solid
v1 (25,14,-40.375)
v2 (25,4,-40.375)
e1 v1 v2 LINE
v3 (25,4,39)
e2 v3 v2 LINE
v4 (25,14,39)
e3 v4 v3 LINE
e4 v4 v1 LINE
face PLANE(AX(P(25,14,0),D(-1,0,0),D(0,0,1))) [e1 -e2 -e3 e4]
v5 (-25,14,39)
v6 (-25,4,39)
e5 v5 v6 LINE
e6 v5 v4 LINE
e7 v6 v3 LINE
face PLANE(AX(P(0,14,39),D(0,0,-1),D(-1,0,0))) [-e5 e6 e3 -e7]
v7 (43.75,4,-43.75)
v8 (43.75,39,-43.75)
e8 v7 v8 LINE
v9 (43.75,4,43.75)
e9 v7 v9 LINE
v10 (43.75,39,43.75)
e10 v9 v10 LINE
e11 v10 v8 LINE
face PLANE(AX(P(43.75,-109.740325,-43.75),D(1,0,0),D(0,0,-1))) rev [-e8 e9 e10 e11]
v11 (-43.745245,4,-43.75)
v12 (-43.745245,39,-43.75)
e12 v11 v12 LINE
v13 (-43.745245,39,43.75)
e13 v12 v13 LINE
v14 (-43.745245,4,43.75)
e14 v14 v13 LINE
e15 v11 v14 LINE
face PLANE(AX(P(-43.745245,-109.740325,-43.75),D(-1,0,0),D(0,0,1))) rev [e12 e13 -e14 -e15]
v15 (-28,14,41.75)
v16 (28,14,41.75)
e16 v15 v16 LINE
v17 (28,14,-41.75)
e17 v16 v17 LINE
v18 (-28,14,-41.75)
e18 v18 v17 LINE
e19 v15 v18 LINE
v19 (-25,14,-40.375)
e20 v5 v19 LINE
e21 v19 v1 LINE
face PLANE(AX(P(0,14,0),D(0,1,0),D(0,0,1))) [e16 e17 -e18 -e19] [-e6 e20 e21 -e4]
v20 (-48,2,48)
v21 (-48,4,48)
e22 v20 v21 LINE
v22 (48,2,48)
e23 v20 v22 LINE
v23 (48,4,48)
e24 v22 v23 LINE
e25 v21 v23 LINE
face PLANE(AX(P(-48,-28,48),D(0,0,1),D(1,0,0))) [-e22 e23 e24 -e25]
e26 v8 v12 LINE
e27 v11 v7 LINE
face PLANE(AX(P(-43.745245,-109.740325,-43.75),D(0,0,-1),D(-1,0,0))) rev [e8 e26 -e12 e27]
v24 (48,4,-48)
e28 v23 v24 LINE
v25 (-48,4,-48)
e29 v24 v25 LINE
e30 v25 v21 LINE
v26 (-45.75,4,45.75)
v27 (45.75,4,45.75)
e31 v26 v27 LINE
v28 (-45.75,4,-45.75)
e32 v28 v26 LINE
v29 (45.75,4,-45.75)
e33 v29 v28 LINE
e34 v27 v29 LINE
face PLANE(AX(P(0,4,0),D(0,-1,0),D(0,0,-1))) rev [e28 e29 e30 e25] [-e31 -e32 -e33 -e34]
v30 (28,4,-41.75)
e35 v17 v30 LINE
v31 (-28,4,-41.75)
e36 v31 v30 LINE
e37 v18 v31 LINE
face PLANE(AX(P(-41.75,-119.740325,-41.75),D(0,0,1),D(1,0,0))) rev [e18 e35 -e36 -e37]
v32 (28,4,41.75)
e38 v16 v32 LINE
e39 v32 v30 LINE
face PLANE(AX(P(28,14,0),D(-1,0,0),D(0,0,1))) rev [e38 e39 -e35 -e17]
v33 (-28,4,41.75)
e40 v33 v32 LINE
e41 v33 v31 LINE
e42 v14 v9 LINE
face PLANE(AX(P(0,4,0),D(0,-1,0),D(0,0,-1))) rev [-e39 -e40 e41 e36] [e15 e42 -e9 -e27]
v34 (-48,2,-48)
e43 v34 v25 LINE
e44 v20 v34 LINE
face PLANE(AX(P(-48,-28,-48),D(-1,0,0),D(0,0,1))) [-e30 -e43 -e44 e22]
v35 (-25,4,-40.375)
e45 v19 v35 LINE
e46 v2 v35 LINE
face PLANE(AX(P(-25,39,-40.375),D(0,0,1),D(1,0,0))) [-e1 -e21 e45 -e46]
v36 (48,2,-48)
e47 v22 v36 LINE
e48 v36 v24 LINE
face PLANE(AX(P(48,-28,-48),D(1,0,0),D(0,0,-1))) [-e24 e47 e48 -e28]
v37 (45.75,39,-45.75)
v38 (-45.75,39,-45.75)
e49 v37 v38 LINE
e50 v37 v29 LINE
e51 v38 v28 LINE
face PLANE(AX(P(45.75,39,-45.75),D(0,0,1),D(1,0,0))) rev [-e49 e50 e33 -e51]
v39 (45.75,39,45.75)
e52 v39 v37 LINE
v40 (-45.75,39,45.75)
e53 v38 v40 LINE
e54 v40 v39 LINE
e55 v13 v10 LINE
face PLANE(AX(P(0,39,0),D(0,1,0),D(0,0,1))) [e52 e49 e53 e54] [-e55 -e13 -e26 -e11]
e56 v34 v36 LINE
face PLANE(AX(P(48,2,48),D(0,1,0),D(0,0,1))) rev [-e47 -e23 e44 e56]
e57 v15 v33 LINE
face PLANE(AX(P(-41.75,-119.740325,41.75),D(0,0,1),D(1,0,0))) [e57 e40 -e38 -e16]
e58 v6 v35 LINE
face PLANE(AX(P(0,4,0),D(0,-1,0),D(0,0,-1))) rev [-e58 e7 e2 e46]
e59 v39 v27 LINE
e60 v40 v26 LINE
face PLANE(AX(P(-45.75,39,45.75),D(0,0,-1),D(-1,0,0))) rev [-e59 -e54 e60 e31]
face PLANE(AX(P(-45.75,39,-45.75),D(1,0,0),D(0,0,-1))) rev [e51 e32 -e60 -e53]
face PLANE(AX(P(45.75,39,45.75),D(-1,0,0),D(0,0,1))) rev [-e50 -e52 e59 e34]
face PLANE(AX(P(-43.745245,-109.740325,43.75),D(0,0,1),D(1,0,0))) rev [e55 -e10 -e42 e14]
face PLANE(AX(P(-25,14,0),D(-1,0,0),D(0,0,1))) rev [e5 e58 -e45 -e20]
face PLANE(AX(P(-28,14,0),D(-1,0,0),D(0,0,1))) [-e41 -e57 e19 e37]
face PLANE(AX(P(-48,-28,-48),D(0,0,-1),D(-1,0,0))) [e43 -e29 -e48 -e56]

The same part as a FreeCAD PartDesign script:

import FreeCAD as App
import Part
import Sketcher

doc = App.newDocument("Part")
body = doc.addObject("PartDesign::Body", "Body")

# Sketch on XZ plane
sketch1 = body.newObject("Sketcher::SketchObject", "Sketch")
sketch1.AttachmentSupport = (doc.getObject("XZ_Plane"), [""])
sketch1.MapMode = "FlatFace"
sketch1.addGeometry(Part.LineSegment(App.Vector(-50, -50, 0), App.Vector(-50, 50, 0)), False)
sketch1.addGeometry(Part.LineSegment(App.Vector(-50, 50, 0), App.Vector(50, 50, 0)), False)
sketch1.addGeometry(Part.LineSegment(App.Vector(50, 50, 0), App.Vector(50, -50, 0)), False)
sketch1.addGeometry(Part.LineSegment(App.Vector(50, -50, 0), App.Vector(-50, -50, 0)), False)
sketch1.addConstraint(Sketcher.Constraint("Coincident", 0, 2, 1, 1))
sketch1.addConstraint(Sketcher.Constraint("Coincident", 1, 2, 2, 1))
sketch1.addConstraint(Sketcher.Constraint("Coincident", 2, 2, 3, 1))
sketch1.addConstraint(Sketcher.Constraint("Coincident", 3, 2, 0, 1))
sketch1.addConstraint(Sketcher.Constraint("Vertical", 0))
sketch1.addConstraint(Sketcher.Constraint("Horizontal", 1))
sketch1.addConstraint(Sketcher.Constraint("Vertical", 2))
sketch1.addConstraint(Sketcher.Constraint("Horizontal", 3))
sketch1.addConstraint(Sketcher.Constraint("Symmetric", 0, 2, 2, 2, -1, 1))
sketch1.addConstraint(Sketcher.Constraint("Equal", 3, 0))
sketch1.addConstraint(Sketcher.Constraint("DistanceX", 1, 1, 1, 2, 100.0))
pad1 = body.newObject("PartDesign::Pad", "Pad")
pad1.Profile = sketch1
pad1.Length = 4
pad1.Reversed = True

# Sketch on XZ plane
sketch2 = body.newObject("Sketcher::SketchObject", "Sketch001")
sketch2.AttachmentSupport = (doc.getObject("XZ_Plane"), [""])
sketch2.MapMode = "FlatFace"
sketch2.AttachmentOffset = App.Placement(App.Vector(0, 0, -4), App.Rotation())
sketch2.addGeometry(Part.LineSegment(App.Vector(-46, -46, 0), App.Vector(-46, 46, 0)), False)
sketch2.addGeometry(Part.LineSegment(App.Vector(-46, 46, 0), App.Vector(46, 46, 0)), False)
sketch2.addGeometry(Part.LineSegment(App.Vector(46, 46, 0), App.Vector(46, -46, 0)), False)
sketch2.addGeometry(Part.LineSegment(App.Vector(46, -46, 0), App.Vector(-46, -46, 0)), False)
sketch2.addGeometry(Part.LineSegment(App.Vector(42, 42, 0), App.Vector(-42, 42, 0)), False)
sketch2.addGeometry(Part.LineSegment(App.Vector(-42, 42, 0), App.Vector(-42, -42, 0)), False)
sketch2.addGeometry(Part.LineSegment(App.Vector(-42, -42, 0), App.Vector(42, -42, 0)), False)
sketch2.addGeometry(Part.LineSegment(App.Vector(42, -42, 0), App.Vector(42, 42, 0)), False)
sketch2.addConstraint(Sketcher.Constraint("Coincident", 0, 2, 1, 1))
sketch2.addConstraint(Sketcher.Constraint("Coincident", 1, 2, 2, 1))
sketch2.addConstraint(Sketcher.Constraint("Coincident", 2, 2, 3, 1))
sketch2.addConstraint(Sketcher.Constraint("Coincident", 3, 2, 0, 1))
sketch2.addConstraint(Sketcher.Constraint("Coincident", 4, 2, 5, 1))
sketch2.addConstraint(Sketcher.Constraint("Coincident", 5, 2, 6, 1))
sketch2.addConstraint(Sketcher.Constraint("Coincident", 6, 2, 7, 1))
sketch2.addConstraint(Sketcher.Constraint("Coincident", 7, 2, 4, 1))
sketch2.addConstraint(Sketcher.Constraint("Vertical", 0))
sketch2.addConstraint(Sketcher.Constraint("Horizontal", 1))
sketch2.addConstraint(Sketcher.Constraint("Vertical", 2))
sketch2.addConstraint(Sketcher.Constraint("Horizontal", 3))
sketch2.addConstraint(Sketcher.Constraint("Horizontal", 4))
sketch2.addConstraint(Sketcher.Constraint("Vertical", 5))
sketch2.addConstraint(Sketcher.Constraint("Horizontal", 6))
sketch2.addConstraint(Sketcher.Constraint("Vertical", 7))
sketch2.addConstraint(Sketcher.Constraint("Symmetric", 0, 2, 2, 2, -1, 1))
sketch2.addConstraint(Sketcher.Constraint("Symmetric", 4, 2, 6, 2, -1, 1))
sketch2.addConstraint(Sketcher.Constraint("Equal", 3, 0))
sketch2.addConstraint(Sketcher.Constraint("Equal", 6, 5))
sketch2.addConstraint(Sketcher.Constraint("DistanceX", 1, 1, 1, 2, 91.5))
sketch2.addConstraint(Sketcher.Constraint("DistanceX", 4, 2, 4, 1, 83.5))
pad2 = body.newObject("PartDesign::Pad", "Pad001")
pad2.Profile = sketch2
pad2.Length = 35
pad2.Reversed = True

# Sketch on XY plane
sketch3 = body.newObject("Sketcher::SketchObject", "Sketch002")
sketch3.AttachmentSupport = (doc.getObject("XY_Plane"), [""])
sketch3.MapMode = "FlatFace"
sketch3.AttachmentOffset = App.Placement(App.Vector(0, 0, -45.75), App.Rotation())
sketch3.addGeometry(Part.LineSegment(App.Vector(2, 8, 0), App.Vector(2, 4, 0)), False)
sketch3.addGeometry(Part.LineSegment(App.Vector(2, 4, 0), App.Vector(-2, 4, 0)), False)
sketch3.addGeometry(Part.LineSegment(App.Vector(-2, 4, 0), App.Vector(-2, 8, 0)), False)
sketch3.addGeometry(Part.LineSegment(App.Vector(-2, 8, 0), App.Vector(2, 8, 0)), False)
sketch3.addConstraint(Sketcher.Constraint("Coincident", 0, 2, 1, 1))
sketch3.addConstraint(Sketcher.Constraint("Coincident", 1, 2, 2, 1))
sketch3.addConstraint(Sketcher.Constraint("Coincident", 2, 2, 3, 1))
sketch3.addConstraint(Sketcher.Constraint("Coincident", 3, 2, 0, 1))
sketch3.addConstraint(Sketcher.Constraint("Vertical", 0))
sketch3.addConstraint(Sketcher.Constraint("Horizontal", 1))
sketch3.addConstraint(Sketcher.Constraint("Vertical", 2))
sketch3.addConstraint(Sketcher.Constraint("Horizontal", 3))
sketch3.addConstraint(Sketcher.Constraint("Equal", 3, 0))
sketch3.addConstraint(Sketcher.Constraint("DistanceX", 1, 2, 1, 1, 4.0))
sketch3.addConstraint(Sketcher.Constraint("DistanceX", -1, 1, 0, 2, 2.0))
sketch3.addConstraint(Sketcher.Constraint("DistanceY", -1, 1, 0, 2, 4.0))
pocket1 = body.newObject("PartDesign::Pocket", "Pocket")
pocket1.Profile = sketch3
pocket1.Length = 4
pocket1.Reversed = True

# Sketch on XZ plane
sketch4 = body.newObject("Sketcher::SketchObject", "Sketch003")
sketch4.AttachmentSupport = (doc.getObject("XZ_Plane"), [""])
sketch4.MapMode = "FlatFace"
sketch4.AttachmentOffset = App.Placement(App.Vector(0, 0, -4), App.Rotation())
sketch4.addGeometry(Part.LineSegment(App.Vector(28, -42, 0), App.Vector(-28, -42, 0)), False)
sketch4.addGeometry(Part.LineSegment(App.Vector(-28, -42, 0), App.Vector(-28, 42, 0)), False)
sketch4.addGeometry(Part.LineSegment(App.Vector(-28, 42, 0), App.Vector(28, 42, 0)), False)
sketch4.addGeometry(Part.LineSegment(App.Vector(28, 42, 0), App.Vector(28, -42, 0)), False)
sketch4.addGeometry(Part.LineSegment(App.Vector(-25, -39, 0), App.Vector(25, -39, 0)), False)
sketch4.addGeometry(Part.LineSegment(App.Vector(25, -39, 0), App.Vector(25, 39, 0)), False)
sketch4.addGeometry(Part.LineSegment(App.Vector(25, 39, 0), App.Vector(-25, 39, 0)), False)
sketch4.addGeometry(Part.LineSegment(App.Vector(-25, 39, 0), App.Vector(-25, -39, 0)), False)
sketch4.addConstraint(Sketcher.Constraint("Coincident", 0, 2, 1, 1))
sketch4.addConstraint(Sketcher.Constraint("Coincident", 1, 2, 2, 1))
sketch4.addConstraint(Sketcher.Constraint("Coincident", 2, 2, 3, 1))
sketch4.addConstraint(Sketcher.Constraint("Coincident", 3, 2, 0, 1))
sketch4.addConstraint(Sketcher.Constraint("Coincident", 4, 2, 5, 1))
sketch4.addConstraint(Sketcher.Constraint("Coincident", 5, 2, 6, 1))
sketch4.addConstraint(Sketcher.Constraint("Coincident", 6, 2, 7, 1))
sketch4.addConstraint(Sketcher.Constraint("Coincident", 7, 2, 4, 1))
sketch4.addConstraint(Sketcher.Constraint("Horizontal", 0))
sketch4.addConstraint(Sketcher.Constraint("Vertical", 1))
sketch4.addConstraint(Sketcher.Constraint("Horizontal", 2))
sketch4.addConstraint(Sketcher.Constraint("Vertical", 3))
sketch4.addConstraint(Sketcher.Constraint("Horizontal", 4))
sketch4.addConstraint(Sketcher.Constraint("Vertical", 5))
sketch4.addConstraint(Sketcher.Constraint("Horizontal", 6))
sketch4.addConstraint(Sketcher.Constraint("Vertical", 7))
sketch4.addConstraint(Sketcher.Constraint("Symmetric", 0, 2, 2, 2, -1, 1))
sketch4.addConstraint(Sketcher.Constraint("Symmetric", 4, 2, 6, 2, -1, 1))
sketch4.addConstraint(Sketcher.Constraint("DistanceX", 0, 2, 0, 1, 56.0))
sketch4.addConstraint(Sketcher.Constraint("DistanceX", 4, 1, 4, 2, 50.0))
sketch4.addConstraint(Sketcher.Constraint("DistanceY", 5, 1, 5, 2, 78.0))
sketch4.addConstraint(Sketcher.Constraint("DistanceY", 1, 1, 1, 2, 83.5))
pad3 = body.newObject("PartDesign::Pad", "Pad002")
pad3.Profile = sketch4
pad3.Length = 10
pad3.Reversed = True

# Sketch on XZ plane
sketch5 = body.newObject("Sketcher::SketchObject", "Sketch004")
sketch5.AttachmentSupport = (doc.getObject("XZ_Plane"), [""])
sketch5.MapMode = "FlatFace"
sketch5.AttachmentOffset = App.Placement(App.Vector(0, 0, -4), App.Rotation())
sketch5.addGeometry(Part.LineSegment(App.Vector(-25, -40.4, 0), App.Vector(-25, -39, 0)), False)
sketch5.addGeometry(Part.LineSegment(App.Vector(-25, -39, 0), App.Vector(25, -39, 0)), False)
sketch5.addGeometry(Part.LineSegment(App.Vector(25, -39, 0), App.Vector(25, -40.4, 0)), False)
sketch5.addGeometry(Part.LineSegment(App.Vector(25, -40.4, 0), App.Vector(-25, -40.4, 0)), False)
sketch5.addConstraint(Sketcher.Constraint("Coincident", 0, 2, 1, 1))
sketch5.addConstraint(Sketcher.Constraint("Coincident", 1, 2, 2, 1))
sketch5.addConstraint(Sketcher.Constraint("Coincident", 2, 2, 3, 1))
sketch5.addConstraint(Sketcher.Constraint("Coincident", 3, 2, 0, 1))
sketch5.addConstraint(Sketcher.Constraint("Vertical", 0))
sketch5.addConstraint(Sketcher.Constraint("Horizontal", 1))
sketch5.addConstraint(Sketcher.Constraint("Vertical", 2))
sketch5.addConstraint(Sketcher.Constraint("Horizontal", 3))
sketch5.addConstraint(Sketcher.Constraint("DistanceX", 1, 1, 1, 2, 50.0))
sketch5.addConstraint(Sketcher.Constraint("DistanceX", 0, 2, -1, 1, 25.0))
sketch5.addConstraint(Sketcher.Constraint("DistanceY", 0, 2, -1, 1, 39.0))
sketch5.addConstraint(Sketcher.Constraint("DistanceY", 0, 1, 0, 2, 1.375))
pocket2 = body.newObject("PartDesign::Pocket", "Pocket001")
pocket2.Profile = sketch5
pocket2.Type = "ThroughAll"

# Sketch on XY plane
sketch6 = body.newObject("Sketcher::SketchObject", "Sketch005")
sketch6.AttachmentSupport = (doc.getObject("XY_Plane"), [""])
sketch6.MapMode = "FlatFace"
sketch6.AttachmentOffset = App.Placement(App.Vector(0, 0, -45.75), App.Rotation())
sketch6.addGeometry(Part.LineSegment(App.Vector(2, 8, 0), App.Vector(2, 4, 0)), False)
sketch6.addGeometry(Part.LineSegment(App.Vector(2, 4, 0), App.Vector(-2, 4, 0)), False)
sketch6.addGeometry(Part.LineSegment(App.Vector(-2, 4, 0), App.Vector(-2, 8, 0)), False)
sketch6.addGeometry(Part.LineSegment(App.Vector(-2, 8, 0), App.Vector(2, 8, 0)), False)
sketch6.addConstraint(Sketcher.Constraint("Coincident", 0, 2, 1, 1))
sketch6.addConstraint(Sketcher.Constraint("Coincident", 1, 2, 2, 1))
sketch6.addConstraint(Sketcher.Constraint("Coincident", 2, 2, 3, 1))
sketch6.addConstraint(Sketcher.Constraint("Coincident", 3, 2, 0, 1))
sketch6.addConstraint(Sketcher.Constraint("Vertical", 0))
sketch6.addConstraint(Sketcher.Constraint("Horizontal", 1))
sketch6.addConstraint(Sketcher.Constraint("Vertical", 2))
sketch6.addConstraint(Sketcher.Constraint("Horizontal", 3))
sketch6.addConstraint(Sketcher.Constraint("Equal", 3, 0))
sketch6.addConstraint(Sketcher.Constraint("DistanceX", 1, 2, 1, 1, 4.0))
sketch6.addConstraint(Sketcher.Constraint("DistanceX", -1, 1, 0, 2, 2.0))
sketch6.addConstraint(Sketcher.Constraint("DistanceY", -1, 1, 0, 2, 4.0))
pad4 = body.newObject("PartDesign::Pad", "Pad003")
pad4.Profile = sketch6
pad4.Length = 4

# Sketch on XZ plane
sketch7 = body.newObject("Sketcher::SketchObject", "Sketch006")
sketch7.AttachmentSupport = (doc.getObject("XZ_Plane"), [""])
sketch7.MapMode = "FlatFace"
sketch7.AttachmentOffset = App.Placement(App.Vector(0, 0, -39), App.Rotation())
sketch7.addGeometry(Part.LineSegment(App.Vector(-44, -44, 0), App.Vector(-44, 44, 0)), False)
sketch7.addGeometry(Part.LineSegment(App.Vector(-44, 44, 0), App.Vector(44, 44, 0)), False)
sketch7.addGeometry(Part.LineSegment(App.Vector(44, 44, 0), App.Vector(44, -44, 0)), False)
sketch7.addGeometry(Part.LineSegment(App.Vector(44, -44, 0), App.Vector(-44, -44, 0)), False)
sketch7.addConstraint(Sketcher.Constraint("Coincident", 0, 2, 1, 1))
sketch7.addConstraint(Sketcher.Constraint("Coincident", 1, 2, 2, 1))
sketch7.addConstraint(Sketcher.Constraint("Coincident", 2, 2, 3, 1))
sketch7.addConstraint(Sketcher.Constraint("Coincident", 3, 2, 0, 1))
sketch7.addConstraint(Sketcher.Constraint("Vertical", 0))
sketch7.addConstraint(Sketcher.Constraint("Horizontal", 1))
sketch7.addConstraint(Sketcher.Constraint("Vertical", 2))
sketch7.addConstraint(Sketcher.Constraint("Horizontal", 3))
sketch7.addConstraint(Sketcher.Constraint("DistanceY", 0, 1, 0, 2, 87.5))
sketch7.addConstraint(Sketcher.Constraint("DistanceY", -1, 1, 0, 2, 43.75))
sketch7.addConstraint(Sketcher.Constraint("DistanceX", -1, 1, 1, 2, 43.75))
sketch7.addConstraint(Sketcher.Constraint("DistanceX", 1, 1, 1, 2, 87.495245))
pocket3 = body.newObject("PartDesign::Pocket", "Pocket002")
pocket3.Profile = sketch7
pocket3.Length = 25
pocket3.Reversed = True

# Sketch on XZ plane
sketch8 = body.newObject("Sketcher::SketchObject", "Sketch007")
sketch8.AttachmentSupport = (doc.getObject("XZ_Plane"), [""])
sketch8.MapMode = "FlatFace"
sketch8.AttachmentOffset = App.Placement(App.Vector(0, 0, -14), App.Rotation())
sketch8.addGeometry(Part.LineSegment(App.Vector(-44, -44, 0), App.Vector(-44, 44, 0)), False)
sketch8.addGeometry(Part.LineSegment(App.Vector(-44, 44, 0), App.Vector(44, 44, 0)), False)
sketch8.addGeometry(Part.LineSegment(App.Vector(44, 44, 0), App.Vector(44, -44, 0)), False)
sketch8.addGeometry(Part.LineSegment(App.Vector(44, -44, 0), App.Vector(-44, -44, 0)), False)
sketch8.addGeometry(Part.LineSegment(App.Vector(42, 42, 0), App.Vector(-42, 42, 0)), False)
sketch8.addGeometry(Part.LineSegment(App.Vector(-42, 42, 0), App.Vector(-42, -42, 0)), False)
sketch8.addGeometry(Part.LineSegment(App.Vector(-42, -42, 0), App.Vector(42, -42, 0)), False)
sketch8.addGeometry(Part.LineSegment(App.Vector(42, -42, 0), App.Vector(42, 42, 0)), False)
sketch8.addConstraint(Sketcher.Constraint("Coincident", 0, 2, 1, 1))
sketch8.addConstraint(Sketcher.Constraint("Coincident", 1, 2, 2, 1))
sketch8.addConstraint(Sketcher.Constraint("Coincident", 2, 2, 3, 1))
sketch8.addConstraint(Sketcher.Constraint("Coincident", 3, 2, 0, 1))
sketch8.addConstraint(Sketcher.Constraint("Coincident", 4, 2, 5, 1))
sketch8.addConstraint(Sketcher.Constraint("Coincident", 5, 2, 6, 1))
sketch8.addConstraint(Sketcher.Constraint("Coincident", 6, 2, 7, 1))
sketch8.addConstraint(Sketcher.Constraint("Coincident", 7, 2, 4, 1))
sketch8.addConstraint(Sketcher.Constraint("Vertical", 0))
sketch8.addConstraint(Sketcher.Constraint("Horizontal", 1))
sketch8.addConstraint(Sketcher.Constraint("Vertical", 2))
sketch8.addConstraint(Sketcher.Constraint("Horizontal", 3))
sketch8.addConstraint(Sketcher.Constraint("Horizontal", 4))
sketch8.addConstraint(Sketcher.Constraint("Vertical", 5))
sketch8.addConstraint(Sketcher.Constraint("Horizontal", 6))
sketch8.addConstraint(Sketcher.Constraint("Vertical", 7))
sketch8.addConstraint(Sketcher.Constraint("Symmetric", 4, 2, 6, 2, -1, 1))
sketch8.addConstraint(Sketcher.Constraint("Equal", 6, 5))
sketch8.addConstraint(Sketcher.Constraint("DistanceX", 4, 2, 4, 1, 83.5))
sketch8.addConstraint(Sketcher.Constraint("DistanceY", 0, 1, 0, 2, 87.5))
sketch8.addConstraint(Sketcher.Constraint("DistanceY", 4, 2, 0, 2, 2.0))
sketch8.addConstraint(Sketcher.Constraint("DistanceX", 6, 2, 2, 2, 2.0))
sketch8.addConstraint(Sketcher.Constraint("DistanceX", 1, 1, 1, 2, 87.495245))
pocket4 = body.newObject("PartDesign::Pocket", "Pocket003")
pocket4.Profile = sketch8
pocket4.Length = 10
pocket4.Reversed = True

# Sketch on XZ plane
sketch9 = body.newObject("Sketcher::SketchObject", "Sketch008")
sketch9.AttachmentSupport = (doc.getObject("XZ_Plane"), [""])
sketch9.MapMode = "FlatFace"
sketch9.AttachmentOffset = App.Placement(App.Vector(0, 0, -4), App.Rotation())
sketch9.addGeometry(Part.LineSegment(App.Vector(-66, -66, 0), App.Vector(-66, 66, 0)), False)
sketch9.addGeometry(Part.LineSegment(App.Vector(-66, 66, 0), App.Vector(66, 66, 0)), False)
sketch9.addGeometry(Part.LineSegment(App.Vector(66, 66, 0), App.Vector(66, -66, 0)), False)
sketch9.addGeometry(Part.LineSegment(App.Vector(66, -66, 0), App.Vector(-66, -66, 0)), False)
sketch9.addGeometry(Part.LineSegment(App.Vector(48, 48, 0), App.Vector(-48, 48, 0)), False)
sketch9.addGeometry(Part.LineSegment(App.Vector(-48, 48, 0), App.Vector(-48, -48, 0)), False)
sketch9.addGeometry(Part.LineSegment(App.Vector(-48, -48, 0), App.Vector(48, -48, 0)), False)
sketch9.addGeometry(Part.LineSegment(App.Vector(48, -48, 0), App.Vector(48, 48, 0)), False)
sketch9.addConstraint(Sketcher.Constraint("Coincident", 0, 2, 1, 1))
sketch9.addConstraint(Sketcher.Constraint("Coincident", 1, 2, 2, 1))
sketch9.addConstraint(Sketcher.Constraint("Coincident", 2, 2, 3, 1))
sketch9.addConstraint(Sketcher.Constraint("Coincident", 3, 2, 0, 1))
sketch9.addConstraint(Sketcher.Constraint("Coincident", 4, 2, 5, 1))
sketch9.addConstraint(Sketcher.Constraint("Coincident", 5, 2, 6, 1))
sketch9.addConstraint(Sketcher.Constraint("Coincident", 6, 2, 7, 1))
sketch9.addConstraint(Sketcher.Constraint("Coincident", 7, 2, 4, 1))
sketch9.addConstraint(Sketcher.Constraint("Vertical", 0))
sketch9.addConstraint(Sketcher.Constraint("Horizontal", 1))
sketch9.addConstraint(Sketcher.Constraint("Vertical", 2))
sketch9.addConstraint(Sketcher.Constraint("Horizontal", 3))
sketch9.addConstraint(Sketcher.Constraint("Horizontal", 4))
sketch9.addConstraint(Sketcher.Constraint("Vertical", 5))
sketch9.addConstraint(Sketcher.Constraint("Horizontal", 6))
sketch9.addConstraint(Sketcher.Constraint("Vertical", 7))
sketch9.addConstraint(Sketcher.Constraint("Symmetric", 0, 2, 2, 2, -1, 1))
sketch9.addConstraint(Sketcher.Constraint("Symmetric", 4, 2, 6, 2, -1, 1))
sketch9.addConstraint(Sketcher.Constraint("Equal", 3, 0))
sketch9.addConstraint(Sketcher.Constraint("Equal", 6, 5))
sketch9.addConstraint(Sketcher.Constraint("DistanceX", 4, 2, 4, 1, 96.0))
sketch9.addConstraint(Sketcher.Constraint("DistanceX", 1, 1, 1, 2, 131.34))
pocket5 = body.newObject("PartDesign::Pocket", "Pocket004")
pocket5.Profile = sketch9
pocket5.Length = 32
pocket5.Reversed = True

# Sketch on XY plane
sketch10 = body.newObject("Sketcher::SketchObject", "Sketch009")
sketch10.AttachmentSupport = (doc.getObject("XY_Plane"), [""])
sketch10.MapMode = "FlatFace"
sketch10.AttachmentOffset = App.Placement(App.Vector(0, 0, -48), App.Rotation())
sketch10.addGeometry(Part.LineSegment(App.Vector(48, 2, 0), App.Vector(48, 0, 0)), False)
sketch10.addGeometry(Part.LineSegment(App.Vector(48, 0, 0), App.Vector(-48, 0, 0)), False)
sketch10.addGeometry(Part.LineSegment(App.Vector(-48, 0, 0), App.Vector(-48, 2, 0)), False)
sketch10.addGeometry(Part.LineSegment(App.Vector(-48, 2, 0), App.Vector(48, 2, 0)), False)
sketch10.addConstraint(Sketcher.Constraint("Coincident", 0, 2, 1, 1))
sketch10.addConstraint(Sketcher.Constraint("Coincident", 1, 2, 2, 1))
sketch10.addConstraint(Sketcher.Constraint("Coincident", 2, 2, 3, 1))
sketch10.addConstraint(Sketcher.Constraint("Coincident", 3, 2, 0, 1))
sketch10.addConstraint(Sketcher.Constraint("Vertical", 0))
sketch10.addConstraint(Sketcher.Constraint("Horizontal", 1))
sketch10.addConstraint(Sketcher.Constraint("Vertical", 2))
sketch10.addConstraint(Sketcher.Constraint("Horizontal", 3))
sketch10.addConstraint(Sketcher.Constraint("Symmetric", 0, 2, 1, 2, -1, 1))
sketch10.addConstraint(Sketcher.Constraint("DistanceX", 1, 2, 1, 1, 96.0))
sketch10.addConstraint(Sketcher.Constraint("DistanceY", 0, 2, 0, 1, 2.0))
pocket6 = body.newObject("PartDesign::Pocket", "Pocket005")
pocket6.Profile = sketch10
pocket6.Type = "ThroughAll"
pocket6.Reversed = True

doc.recompute()
